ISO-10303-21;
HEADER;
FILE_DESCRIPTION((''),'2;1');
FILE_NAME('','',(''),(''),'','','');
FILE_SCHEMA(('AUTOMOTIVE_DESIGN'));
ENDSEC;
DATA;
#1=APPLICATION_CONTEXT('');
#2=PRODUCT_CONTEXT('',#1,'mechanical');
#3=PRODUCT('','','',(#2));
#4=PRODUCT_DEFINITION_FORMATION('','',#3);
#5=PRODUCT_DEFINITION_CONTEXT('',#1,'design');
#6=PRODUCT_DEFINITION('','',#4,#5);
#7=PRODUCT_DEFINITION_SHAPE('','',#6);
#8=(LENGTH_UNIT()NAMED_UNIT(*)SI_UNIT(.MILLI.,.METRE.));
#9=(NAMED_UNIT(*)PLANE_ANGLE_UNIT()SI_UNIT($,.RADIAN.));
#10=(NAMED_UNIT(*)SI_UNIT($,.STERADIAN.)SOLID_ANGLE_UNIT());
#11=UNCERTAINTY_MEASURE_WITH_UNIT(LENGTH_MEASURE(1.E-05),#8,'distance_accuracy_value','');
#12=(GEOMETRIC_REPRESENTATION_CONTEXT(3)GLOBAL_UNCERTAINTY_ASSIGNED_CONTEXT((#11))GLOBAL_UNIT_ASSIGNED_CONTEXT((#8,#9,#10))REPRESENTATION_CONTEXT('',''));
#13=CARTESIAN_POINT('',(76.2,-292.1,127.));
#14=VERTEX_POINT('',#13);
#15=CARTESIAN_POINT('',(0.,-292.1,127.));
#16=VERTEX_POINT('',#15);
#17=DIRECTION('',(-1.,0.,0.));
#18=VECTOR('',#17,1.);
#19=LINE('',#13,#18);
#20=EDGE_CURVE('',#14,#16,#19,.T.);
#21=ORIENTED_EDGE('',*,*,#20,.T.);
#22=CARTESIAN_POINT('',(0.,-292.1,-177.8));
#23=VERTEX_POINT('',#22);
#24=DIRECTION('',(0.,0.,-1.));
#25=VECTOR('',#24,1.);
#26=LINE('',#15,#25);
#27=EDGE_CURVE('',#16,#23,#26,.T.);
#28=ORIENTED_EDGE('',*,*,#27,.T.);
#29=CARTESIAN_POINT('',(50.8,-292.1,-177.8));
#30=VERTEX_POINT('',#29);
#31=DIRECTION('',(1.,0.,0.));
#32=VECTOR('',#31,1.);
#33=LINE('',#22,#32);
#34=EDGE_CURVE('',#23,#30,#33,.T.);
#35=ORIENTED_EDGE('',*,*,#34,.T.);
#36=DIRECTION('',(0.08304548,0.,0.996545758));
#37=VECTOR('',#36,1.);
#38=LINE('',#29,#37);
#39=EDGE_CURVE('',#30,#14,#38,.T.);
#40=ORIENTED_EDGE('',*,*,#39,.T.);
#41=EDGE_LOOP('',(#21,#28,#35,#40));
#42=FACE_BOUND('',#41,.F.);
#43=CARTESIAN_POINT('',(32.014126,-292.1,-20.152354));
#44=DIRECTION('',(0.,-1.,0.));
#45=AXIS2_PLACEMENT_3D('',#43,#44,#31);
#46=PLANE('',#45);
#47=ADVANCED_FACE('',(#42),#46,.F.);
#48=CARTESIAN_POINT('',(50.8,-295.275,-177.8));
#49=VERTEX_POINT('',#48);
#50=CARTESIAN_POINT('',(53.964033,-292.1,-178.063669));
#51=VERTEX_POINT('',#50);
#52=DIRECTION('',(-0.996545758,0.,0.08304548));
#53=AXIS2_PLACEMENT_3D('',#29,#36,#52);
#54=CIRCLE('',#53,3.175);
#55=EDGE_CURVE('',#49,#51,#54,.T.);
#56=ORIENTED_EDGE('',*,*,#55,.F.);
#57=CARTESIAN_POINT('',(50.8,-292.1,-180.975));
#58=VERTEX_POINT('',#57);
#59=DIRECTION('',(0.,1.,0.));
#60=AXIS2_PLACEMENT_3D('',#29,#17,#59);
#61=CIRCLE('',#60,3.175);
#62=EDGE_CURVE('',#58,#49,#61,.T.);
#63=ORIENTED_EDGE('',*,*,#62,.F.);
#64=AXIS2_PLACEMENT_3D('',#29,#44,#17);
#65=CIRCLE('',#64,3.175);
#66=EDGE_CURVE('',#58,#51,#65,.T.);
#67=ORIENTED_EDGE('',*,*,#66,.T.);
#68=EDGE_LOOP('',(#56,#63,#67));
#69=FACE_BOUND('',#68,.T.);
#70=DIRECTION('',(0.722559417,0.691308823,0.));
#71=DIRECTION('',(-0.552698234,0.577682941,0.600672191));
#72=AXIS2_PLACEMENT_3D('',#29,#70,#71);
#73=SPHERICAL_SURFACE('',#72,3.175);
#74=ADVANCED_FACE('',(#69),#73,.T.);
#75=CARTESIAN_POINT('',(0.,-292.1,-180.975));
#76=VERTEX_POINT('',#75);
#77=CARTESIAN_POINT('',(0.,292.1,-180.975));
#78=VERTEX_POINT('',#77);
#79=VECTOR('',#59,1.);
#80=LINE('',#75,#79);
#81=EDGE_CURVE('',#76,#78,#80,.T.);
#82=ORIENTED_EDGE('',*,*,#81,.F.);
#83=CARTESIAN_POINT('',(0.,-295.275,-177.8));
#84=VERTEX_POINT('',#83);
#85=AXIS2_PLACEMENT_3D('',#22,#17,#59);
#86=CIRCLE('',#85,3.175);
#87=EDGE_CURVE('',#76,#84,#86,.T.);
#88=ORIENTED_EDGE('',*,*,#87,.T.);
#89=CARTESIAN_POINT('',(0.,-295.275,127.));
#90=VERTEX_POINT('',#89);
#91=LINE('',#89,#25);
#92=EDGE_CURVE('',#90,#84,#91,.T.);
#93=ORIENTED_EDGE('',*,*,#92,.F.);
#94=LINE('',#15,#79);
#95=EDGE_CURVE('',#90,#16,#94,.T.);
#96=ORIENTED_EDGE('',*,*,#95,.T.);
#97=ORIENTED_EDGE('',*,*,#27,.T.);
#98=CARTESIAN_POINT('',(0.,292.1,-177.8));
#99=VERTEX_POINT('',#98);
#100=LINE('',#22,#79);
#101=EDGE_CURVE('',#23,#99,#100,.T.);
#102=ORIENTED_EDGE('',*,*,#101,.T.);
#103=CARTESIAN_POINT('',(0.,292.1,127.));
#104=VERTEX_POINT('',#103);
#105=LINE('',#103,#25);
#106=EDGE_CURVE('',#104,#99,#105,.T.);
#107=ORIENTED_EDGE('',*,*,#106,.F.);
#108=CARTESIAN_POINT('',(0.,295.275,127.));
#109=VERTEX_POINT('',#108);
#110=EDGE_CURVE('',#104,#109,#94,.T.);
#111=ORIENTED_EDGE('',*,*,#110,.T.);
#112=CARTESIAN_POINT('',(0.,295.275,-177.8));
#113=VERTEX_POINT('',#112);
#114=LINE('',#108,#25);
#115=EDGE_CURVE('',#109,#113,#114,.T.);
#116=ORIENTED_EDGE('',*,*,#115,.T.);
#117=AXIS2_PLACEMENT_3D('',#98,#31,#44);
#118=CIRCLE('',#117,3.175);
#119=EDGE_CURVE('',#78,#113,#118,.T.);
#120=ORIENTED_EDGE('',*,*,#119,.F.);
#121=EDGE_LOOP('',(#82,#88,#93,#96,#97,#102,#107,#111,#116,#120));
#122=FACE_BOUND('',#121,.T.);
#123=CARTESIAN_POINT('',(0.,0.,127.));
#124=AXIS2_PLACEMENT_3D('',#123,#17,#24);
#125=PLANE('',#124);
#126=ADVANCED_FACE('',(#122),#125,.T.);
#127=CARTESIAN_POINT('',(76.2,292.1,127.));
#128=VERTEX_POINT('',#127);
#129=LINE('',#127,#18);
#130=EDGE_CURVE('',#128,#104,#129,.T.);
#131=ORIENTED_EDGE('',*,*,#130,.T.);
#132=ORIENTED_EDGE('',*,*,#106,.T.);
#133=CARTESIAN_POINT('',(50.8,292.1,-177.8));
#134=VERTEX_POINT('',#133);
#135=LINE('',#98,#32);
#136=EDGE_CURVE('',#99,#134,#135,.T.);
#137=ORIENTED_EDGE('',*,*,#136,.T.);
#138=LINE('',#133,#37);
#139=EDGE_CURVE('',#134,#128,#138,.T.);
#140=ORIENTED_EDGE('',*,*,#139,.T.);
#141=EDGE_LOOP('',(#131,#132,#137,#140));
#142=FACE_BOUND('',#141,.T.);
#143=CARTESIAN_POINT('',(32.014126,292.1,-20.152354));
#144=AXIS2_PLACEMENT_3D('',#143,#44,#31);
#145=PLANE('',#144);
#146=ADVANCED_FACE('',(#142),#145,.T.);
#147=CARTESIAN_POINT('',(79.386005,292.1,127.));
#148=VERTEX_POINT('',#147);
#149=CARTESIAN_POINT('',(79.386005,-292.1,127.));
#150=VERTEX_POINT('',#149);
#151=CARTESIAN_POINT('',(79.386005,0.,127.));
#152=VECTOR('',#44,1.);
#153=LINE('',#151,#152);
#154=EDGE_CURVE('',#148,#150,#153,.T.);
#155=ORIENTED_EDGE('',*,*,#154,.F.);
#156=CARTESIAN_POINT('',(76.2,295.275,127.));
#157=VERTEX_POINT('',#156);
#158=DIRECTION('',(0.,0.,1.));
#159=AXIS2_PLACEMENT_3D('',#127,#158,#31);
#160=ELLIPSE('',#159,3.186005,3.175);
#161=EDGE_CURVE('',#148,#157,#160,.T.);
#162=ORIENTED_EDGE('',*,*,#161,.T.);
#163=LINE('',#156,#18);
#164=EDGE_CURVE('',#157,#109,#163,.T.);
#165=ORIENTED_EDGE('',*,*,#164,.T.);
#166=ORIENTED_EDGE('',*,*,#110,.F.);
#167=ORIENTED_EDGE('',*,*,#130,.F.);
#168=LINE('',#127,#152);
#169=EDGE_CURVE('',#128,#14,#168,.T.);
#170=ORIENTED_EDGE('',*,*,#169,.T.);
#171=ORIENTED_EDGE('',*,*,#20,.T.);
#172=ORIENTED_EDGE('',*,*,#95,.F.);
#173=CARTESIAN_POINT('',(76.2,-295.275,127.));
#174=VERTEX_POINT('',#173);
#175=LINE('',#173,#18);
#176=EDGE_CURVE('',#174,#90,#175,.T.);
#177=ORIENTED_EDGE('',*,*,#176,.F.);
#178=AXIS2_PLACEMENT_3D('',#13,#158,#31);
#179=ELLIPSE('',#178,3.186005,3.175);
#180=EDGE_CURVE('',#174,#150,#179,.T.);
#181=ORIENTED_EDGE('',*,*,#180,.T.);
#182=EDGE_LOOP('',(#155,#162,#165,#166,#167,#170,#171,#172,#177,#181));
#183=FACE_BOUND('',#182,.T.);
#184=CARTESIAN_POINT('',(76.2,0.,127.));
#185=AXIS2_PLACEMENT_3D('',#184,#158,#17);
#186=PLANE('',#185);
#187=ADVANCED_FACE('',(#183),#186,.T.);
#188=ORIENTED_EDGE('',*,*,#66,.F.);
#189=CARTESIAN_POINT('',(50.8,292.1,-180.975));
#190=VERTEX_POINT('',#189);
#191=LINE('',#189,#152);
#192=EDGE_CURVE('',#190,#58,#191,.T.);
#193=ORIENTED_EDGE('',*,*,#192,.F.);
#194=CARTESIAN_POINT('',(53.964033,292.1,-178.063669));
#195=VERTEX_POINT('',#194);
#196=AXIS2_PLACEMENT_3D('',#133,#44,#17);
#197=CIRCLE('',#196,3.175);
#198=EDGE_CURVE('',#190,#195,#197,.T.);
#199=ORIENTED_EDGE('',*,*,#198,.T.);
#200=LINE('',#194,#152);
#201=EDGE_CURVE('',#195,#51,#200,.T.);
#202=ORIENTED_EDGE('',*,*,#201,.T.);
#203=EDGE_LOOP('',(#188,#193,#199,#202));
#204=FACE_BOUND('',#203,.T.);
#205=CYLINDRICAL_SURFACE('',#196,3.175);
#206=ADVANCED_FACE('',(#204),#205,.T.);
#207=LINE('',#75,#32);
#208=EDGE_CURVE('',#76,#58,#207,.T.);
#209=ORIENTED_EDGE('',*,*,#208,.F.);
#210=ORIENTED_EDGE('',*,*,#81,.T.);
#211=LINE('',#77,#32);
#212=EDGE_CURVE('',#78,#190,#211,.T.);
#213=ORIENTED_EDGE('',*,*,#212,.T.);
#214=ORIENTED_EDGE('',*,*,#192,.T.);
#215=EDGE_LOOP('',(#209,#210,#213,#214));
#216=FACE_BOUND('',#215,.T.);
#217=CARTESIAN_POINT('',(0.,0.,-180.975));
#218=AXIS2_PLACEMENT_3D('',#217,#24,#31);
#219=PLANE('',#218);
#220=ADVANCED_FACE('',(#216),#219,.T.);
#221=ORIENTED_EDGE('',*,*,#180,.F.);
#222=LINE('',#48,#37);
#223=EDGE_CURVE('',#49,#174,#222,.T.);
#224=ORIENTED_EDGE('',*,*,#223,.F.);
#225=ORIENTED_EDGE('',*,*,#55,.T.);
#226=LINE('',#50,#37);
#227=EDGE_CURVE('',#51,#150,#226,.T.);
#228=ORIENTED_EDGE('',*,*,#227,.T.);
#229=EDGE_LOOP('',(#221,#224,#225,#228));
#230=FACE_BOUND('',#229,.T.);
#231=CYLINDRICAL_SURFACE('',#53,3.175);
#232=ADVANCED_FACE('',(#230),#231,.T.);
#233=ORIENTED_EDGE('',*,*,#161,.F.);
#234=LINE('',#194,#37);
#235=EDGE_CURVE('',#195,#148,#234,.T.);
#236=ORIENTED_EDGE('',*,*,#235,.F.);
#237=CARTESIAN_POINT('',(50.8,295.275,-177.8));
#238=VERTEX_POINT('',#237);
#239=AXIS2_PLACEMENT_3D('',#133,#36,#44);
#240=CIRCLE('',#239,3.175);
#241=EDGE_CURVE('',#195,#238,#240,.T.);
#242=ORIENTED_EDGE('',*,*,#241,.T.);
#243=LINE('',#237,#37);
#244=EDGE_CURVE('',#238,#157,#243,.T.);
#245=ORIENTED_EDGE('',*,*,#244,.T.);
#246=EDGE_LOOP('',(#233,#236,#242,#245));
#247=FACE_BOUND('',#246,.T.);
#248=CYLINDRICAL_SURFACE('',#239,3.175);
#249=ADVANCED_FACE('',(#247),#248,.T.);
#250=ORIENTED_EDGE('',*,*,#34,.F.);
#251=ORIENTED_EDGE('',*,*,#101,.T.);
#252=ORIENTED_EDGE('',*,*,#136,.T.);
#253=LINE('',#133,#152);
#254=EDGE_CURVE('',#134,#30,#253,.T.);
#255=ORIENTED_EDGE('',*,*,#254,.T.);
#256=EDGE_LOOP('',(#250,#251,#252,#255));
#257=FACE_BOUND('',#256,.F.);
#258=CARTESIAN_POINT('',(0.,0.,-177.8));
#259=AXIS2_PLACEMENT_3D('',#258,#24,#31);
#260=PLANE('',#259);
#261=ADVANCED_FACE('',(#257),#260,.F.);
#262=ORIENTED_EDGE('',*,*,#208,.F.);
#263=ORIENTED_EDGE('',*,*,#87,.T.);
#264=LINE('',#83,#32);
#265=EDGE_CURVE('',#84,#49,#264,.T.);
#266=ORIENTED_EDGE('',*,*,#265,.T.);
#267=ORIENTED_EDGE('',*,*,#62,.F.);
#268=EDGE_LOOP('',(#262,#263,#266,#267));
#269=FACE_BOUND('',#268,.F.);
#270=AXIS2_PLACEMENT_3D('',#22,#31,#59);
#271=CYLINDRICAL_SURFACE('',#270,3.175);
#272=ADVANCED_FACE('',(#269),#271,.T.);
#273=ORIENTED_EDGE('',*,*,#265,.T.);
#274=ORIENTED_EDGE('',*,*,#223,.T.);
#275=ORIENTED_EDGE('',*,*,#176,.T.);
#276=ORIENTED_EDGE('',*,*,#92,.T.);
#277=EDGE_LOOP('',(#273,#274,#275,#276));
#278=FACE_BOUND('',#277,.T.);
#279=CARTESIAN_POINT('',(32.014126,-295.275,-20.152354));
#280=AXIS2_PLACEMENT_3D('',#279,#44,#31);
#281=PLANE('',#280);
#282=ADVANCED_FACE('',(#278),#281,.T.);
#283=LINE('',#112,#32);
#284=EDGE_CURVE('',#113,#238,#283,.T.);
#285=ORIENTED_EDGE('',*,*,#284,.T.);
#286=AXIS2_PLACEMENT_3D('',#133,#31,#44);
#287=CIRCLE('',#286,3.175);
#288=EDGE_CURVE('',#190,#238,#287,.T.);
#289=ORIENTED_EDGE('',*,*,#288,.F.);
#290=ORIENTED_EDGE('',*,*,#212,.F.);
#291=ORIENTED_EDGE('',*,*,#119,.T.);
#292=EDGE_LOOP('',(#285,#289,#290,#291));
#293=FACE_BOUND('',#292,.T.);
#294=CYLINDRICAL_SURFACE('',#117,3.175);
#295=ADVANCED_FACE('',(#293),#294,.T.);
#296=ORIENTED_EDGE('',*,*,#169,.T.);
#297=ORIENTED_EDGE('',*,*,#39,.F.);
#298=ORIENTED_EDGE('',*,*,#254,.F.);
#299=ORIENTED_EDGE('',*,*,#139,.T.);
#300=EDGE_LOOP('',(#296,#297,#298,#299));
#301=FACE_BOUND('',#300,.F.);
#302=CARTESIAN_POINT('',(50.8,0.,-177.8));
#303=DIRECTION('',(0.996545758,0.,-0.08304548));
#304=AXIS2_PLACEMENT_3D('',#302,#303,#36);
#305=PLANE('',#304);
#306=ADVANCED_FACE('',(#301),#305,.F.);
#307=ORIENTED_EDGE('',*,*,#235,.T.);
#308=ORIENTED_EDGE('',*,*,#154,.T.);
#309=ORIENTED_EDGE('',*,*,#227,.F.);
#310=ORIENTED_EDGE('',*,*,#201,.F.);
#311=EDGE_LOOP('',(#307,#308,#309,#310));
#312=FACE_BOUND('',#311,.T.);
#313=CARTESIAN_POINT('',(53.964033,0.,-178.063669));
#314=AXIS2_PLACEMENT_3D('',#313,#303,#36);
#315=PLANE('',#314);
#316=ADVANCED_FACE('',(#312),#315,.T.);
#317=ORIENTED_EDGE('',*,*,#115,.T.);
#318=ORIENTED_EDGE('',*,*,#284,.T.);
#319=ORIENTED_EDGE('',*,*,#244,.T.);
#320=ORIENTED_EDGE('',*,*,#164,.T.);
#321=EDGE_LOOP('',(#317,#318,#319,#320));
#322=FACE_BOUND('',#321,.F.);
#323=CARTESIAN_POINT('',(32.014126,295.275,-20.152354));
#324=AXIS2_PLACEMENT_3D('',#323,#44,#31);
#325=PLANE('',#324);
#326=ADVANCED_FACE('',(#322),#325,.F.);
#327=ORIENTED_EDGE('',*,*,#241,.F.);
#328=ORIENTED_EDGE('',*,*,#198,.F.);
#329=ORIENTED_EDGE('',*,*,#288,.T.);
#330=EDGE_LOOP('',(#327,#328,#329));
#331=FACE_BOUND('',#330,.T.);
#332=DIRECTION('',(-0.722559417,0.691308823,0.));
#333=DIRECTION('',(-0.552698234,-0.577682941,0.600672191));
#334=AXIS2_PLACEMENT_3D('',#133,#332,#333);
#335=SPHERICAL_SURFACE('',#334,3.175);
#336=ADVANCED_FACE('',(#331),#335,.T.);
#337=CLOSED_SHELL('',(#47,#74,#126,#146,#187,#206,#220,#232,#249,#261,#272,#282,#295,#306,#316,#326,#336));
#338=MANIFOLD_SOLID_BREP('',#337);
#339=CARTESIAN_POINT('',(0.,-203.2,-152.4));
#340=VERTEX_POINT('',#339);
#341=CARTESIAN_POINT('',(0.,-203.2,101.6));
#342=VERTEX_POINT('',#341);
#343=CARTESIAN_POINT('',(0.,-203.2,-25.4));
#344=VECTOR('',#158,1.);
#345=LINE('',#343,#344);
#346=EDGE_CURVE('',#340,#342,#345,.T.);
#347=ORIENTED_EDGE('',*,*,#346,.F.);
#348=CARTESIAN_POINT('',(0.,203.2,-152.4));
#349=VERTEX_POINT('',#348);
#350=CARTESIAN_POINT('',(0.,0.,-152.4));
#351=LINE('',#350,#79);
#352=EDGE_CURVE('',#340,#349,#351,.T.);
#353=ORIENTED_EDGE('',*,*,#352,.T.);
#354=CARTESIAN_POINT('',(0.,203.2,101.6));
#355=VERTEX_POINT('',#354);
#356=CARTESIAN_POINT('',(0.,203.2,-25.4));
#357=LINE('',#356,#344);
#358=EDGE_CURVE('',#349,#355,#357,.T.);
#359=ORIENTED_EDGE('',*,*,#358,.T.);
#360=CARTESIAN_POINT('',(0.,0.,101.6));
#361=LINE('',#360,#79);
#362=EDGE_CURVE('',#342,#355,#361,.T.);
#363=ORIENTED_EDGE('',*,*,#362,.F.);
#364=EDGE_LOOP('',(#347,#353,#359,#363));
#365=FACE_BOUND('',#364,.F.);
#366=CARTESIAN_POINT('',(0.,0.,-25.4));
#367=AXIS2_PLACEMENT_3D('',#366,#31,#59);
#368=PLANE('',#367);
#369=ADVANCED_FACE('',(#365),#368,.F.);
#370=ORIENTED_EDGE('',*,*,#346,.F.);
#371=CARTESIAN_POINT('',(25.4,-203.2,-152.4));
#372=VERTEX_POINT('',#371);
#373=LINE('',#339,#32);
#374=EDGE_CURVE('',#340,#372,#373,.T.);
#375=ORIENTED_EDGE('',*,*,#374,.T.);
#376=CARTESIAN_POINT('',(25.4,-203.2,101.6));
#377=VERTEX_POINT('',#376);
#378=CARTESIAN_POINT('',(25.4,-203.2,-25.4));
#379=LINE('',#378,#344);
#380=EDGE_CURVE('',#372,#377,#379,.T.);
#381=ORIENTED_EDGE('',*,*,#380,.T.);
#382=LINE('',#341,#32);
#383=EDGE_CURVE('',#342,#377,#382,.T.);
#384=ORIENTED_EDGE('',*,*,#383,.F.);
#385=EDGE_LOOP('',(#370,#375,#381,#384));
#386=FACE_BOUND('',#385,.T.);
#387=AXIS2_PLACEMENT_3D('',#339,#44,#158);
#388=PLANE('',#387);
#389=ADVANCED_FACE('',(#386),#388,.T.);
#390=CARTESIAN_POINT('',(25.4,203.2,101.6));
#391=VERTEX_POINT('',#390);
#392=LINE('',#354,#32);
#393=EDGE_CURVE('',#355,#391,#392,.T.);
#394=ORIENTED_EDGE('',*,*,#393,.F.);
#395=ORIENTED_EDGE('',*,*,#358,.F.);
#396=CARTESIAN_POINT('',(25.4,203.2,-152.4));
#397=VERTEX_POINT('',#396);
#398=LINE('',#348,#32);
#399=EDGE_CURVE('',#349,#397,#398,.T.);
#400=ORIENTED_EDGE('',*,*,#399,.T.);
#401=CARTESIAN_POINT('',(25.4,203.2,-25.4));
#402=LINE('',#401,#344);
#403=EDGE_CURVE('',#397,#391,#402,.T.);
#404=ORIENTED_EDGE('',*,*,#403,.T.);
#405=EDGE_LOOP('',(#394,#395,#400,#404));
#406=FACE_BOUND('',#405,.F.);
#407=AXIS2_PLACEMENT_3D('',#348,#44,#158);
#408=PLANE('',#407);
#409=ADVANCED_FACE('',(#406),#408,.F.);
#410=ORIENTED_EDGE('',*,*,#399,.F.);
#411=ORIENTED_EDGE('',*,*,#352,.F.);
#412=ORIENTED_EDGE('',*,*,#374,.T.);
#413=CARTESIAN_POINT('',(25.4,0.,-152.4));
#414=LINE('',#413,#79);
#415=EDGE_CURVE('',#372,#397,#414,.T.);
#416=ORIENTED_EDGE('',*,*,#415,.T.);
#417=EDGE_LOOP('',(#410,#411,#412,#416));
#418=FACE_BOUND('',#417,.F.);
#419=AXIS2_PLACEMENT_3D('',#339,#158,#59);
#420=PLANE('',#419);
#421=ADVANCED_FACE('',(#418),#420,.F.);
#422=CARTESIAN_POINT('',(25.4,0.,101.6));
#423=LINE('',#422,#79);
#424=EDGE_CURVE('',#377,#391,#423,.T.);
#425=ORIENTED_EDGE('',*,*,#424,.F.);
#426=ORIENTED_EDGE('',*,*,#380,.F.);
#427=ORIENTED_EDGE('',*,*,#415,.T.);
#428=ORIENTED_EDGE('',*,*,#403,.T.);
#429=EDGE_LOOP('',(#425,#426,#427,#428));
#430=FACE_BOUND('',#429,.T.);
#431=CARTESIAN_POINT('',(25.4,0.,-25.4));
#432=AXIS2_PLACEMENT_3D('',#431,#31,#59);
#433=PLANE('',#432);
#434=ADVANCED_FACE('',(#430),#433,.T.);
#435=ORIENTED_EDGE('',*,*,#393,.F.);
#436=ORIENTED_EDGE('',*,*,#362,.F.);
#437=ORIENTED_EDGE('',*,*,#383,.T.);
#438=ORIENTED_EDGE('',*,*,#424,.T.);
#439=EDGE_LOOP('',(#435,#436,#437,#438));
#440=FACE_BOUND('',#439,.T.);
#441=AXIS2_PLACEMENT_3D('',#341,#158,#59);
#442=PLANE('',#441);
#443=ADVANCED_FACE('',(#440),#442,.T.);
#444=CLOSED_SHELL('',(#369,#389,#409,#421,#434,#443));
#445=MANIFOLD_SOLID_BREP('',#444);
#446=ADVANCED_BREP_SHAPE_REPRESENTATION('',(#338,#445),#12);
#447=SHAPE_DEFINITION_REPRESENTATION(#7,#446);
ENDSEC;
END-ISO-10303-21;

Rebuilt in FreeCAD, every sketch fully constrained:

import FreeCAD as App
import Part
import Sketcher

V = App.Vector
Q = App.Units.Quantity


def faces_at(feature, points):
    """Names of the faces that lie closest to the given points."""
    faces = feature.Shape.Faces
    near = lambda p: min(range(len(faces)), key=lambda i: faces[i].distToShape(Part.Vertex(*p))[0])
    return sorted({f"Face{near(p) + 1}" for p in points})


def add_polygon(sketch, points):
    """Adds a closed chain of lines whose ends are joined by coincident constraints."""
    first, n = sketch.GeometryCount, len(points)
    for a, b in zip(points, points[1:] + points[:1]):
        sketch.addGeometry(Part.LineSegment(App.Vector(*a, 0), App.Vector(*b, 0)), False)
    for i in range(n):
        sketch.addConstraint(Sketcher.Constraint("Coincident", first + i, 2, first + (i + 1) % n, 1))

doc = App.newDocument("Part")
body = doc.addObject("PartDesign::Body", "Body")

sketch1 = doc.addObject("Sketcher::SketchObject", "Sketch")
body.addObject(sketch1)
sketch1.AttachmentSupport = (doc.YZ_Plane, [""])
sketch1.MapMode = "FlatFace"
add_polygon(sketch1, [(-203, 102), (-203, -152), (203, -152), (203, 102)])
sketch1.addConstraint([
    Sketcher.Constraint("Vertical", 0),
    Sketcher.Constraint("Horizontal", 1),
    Sketcher.Constraint("Vertical", 2),
    Sketcher.Constraint("Horizontal", 3),
    Sketcher.Constraint("DistanceX", 1, 1, 1, 2, Q("16 in")),
    Sketcher.Constraint("DistanceY", 0, 2, 0, 1, Q("10 in")),
    Sketcher.Constraint("DistanceX", 0, 2, -1, 1, Q("8 in")),
    Sketcher.Constraint("DistanceY", 0, 2, -1, 1, Q("6 in")),
])
pad1 = doc.addObject("PartDesign::Pad", "Pad")
body.addObject(pad1)
pad1.Profile = sketch1
pad1.Length = Q("1 in")
body2 = doc.addObject("PartDesign::Body", "Body001")

sketch2 = doc.addObject("Sketcher::SketchObject", "Sketch001")
body2.addObject(sketch2)
sketch2.AttachmentSupport = (doc.getObject("XZ_Plane001"), [""])
sketch2.MapMode = "FlatFace"
add_polygon(sketch2, [(0, -178), (51, -178), (76, 127), (0, 127)])
sketch2.addConstraint([
    Sketcher.Constraint("Horizontal", 0),
    Sketcher.Constraint("Horizontal", 2),
    Sketcher.Constraint("Vertical", 3),
    Sketcher.Constraint("PointOnObject", 2, 2, -2),
    Sketcher.Constraint("DistanceX", 0, 1, 0, 2, Q("2 in")),
    Sketcher.Constraint("DistanceX", 2, 2, 2, 1, Q("3 in")),
    Sketcher.Constraint("DistanceY", 3, 2, 3, 1, Q("12 in")),
    Sketcher.Constraint("DistanceY", 0, 2, -1, 1, Q("7 in")),
])
pad2 = doc.addObject("PartDesign::Pad", "Pad001")
body2.addObject(pad2)
pad2.Profile = sketch2
pad2.Length = Q("23 in")
pad2.Midplane = True
doc.recompute()

thickness = doc.addObject("PartDesign::Thickness", "Thickness")
body2.addObject(thickness)
thickness.Base = (pad2, faces_at(pad2, [(38.1, 0, 127), (0, 0, -25.4)]))
thickness.Value = Q("0.125 in")
thickness.Reversed = False
thickness.Join = "Arc"

doc.recompute()
